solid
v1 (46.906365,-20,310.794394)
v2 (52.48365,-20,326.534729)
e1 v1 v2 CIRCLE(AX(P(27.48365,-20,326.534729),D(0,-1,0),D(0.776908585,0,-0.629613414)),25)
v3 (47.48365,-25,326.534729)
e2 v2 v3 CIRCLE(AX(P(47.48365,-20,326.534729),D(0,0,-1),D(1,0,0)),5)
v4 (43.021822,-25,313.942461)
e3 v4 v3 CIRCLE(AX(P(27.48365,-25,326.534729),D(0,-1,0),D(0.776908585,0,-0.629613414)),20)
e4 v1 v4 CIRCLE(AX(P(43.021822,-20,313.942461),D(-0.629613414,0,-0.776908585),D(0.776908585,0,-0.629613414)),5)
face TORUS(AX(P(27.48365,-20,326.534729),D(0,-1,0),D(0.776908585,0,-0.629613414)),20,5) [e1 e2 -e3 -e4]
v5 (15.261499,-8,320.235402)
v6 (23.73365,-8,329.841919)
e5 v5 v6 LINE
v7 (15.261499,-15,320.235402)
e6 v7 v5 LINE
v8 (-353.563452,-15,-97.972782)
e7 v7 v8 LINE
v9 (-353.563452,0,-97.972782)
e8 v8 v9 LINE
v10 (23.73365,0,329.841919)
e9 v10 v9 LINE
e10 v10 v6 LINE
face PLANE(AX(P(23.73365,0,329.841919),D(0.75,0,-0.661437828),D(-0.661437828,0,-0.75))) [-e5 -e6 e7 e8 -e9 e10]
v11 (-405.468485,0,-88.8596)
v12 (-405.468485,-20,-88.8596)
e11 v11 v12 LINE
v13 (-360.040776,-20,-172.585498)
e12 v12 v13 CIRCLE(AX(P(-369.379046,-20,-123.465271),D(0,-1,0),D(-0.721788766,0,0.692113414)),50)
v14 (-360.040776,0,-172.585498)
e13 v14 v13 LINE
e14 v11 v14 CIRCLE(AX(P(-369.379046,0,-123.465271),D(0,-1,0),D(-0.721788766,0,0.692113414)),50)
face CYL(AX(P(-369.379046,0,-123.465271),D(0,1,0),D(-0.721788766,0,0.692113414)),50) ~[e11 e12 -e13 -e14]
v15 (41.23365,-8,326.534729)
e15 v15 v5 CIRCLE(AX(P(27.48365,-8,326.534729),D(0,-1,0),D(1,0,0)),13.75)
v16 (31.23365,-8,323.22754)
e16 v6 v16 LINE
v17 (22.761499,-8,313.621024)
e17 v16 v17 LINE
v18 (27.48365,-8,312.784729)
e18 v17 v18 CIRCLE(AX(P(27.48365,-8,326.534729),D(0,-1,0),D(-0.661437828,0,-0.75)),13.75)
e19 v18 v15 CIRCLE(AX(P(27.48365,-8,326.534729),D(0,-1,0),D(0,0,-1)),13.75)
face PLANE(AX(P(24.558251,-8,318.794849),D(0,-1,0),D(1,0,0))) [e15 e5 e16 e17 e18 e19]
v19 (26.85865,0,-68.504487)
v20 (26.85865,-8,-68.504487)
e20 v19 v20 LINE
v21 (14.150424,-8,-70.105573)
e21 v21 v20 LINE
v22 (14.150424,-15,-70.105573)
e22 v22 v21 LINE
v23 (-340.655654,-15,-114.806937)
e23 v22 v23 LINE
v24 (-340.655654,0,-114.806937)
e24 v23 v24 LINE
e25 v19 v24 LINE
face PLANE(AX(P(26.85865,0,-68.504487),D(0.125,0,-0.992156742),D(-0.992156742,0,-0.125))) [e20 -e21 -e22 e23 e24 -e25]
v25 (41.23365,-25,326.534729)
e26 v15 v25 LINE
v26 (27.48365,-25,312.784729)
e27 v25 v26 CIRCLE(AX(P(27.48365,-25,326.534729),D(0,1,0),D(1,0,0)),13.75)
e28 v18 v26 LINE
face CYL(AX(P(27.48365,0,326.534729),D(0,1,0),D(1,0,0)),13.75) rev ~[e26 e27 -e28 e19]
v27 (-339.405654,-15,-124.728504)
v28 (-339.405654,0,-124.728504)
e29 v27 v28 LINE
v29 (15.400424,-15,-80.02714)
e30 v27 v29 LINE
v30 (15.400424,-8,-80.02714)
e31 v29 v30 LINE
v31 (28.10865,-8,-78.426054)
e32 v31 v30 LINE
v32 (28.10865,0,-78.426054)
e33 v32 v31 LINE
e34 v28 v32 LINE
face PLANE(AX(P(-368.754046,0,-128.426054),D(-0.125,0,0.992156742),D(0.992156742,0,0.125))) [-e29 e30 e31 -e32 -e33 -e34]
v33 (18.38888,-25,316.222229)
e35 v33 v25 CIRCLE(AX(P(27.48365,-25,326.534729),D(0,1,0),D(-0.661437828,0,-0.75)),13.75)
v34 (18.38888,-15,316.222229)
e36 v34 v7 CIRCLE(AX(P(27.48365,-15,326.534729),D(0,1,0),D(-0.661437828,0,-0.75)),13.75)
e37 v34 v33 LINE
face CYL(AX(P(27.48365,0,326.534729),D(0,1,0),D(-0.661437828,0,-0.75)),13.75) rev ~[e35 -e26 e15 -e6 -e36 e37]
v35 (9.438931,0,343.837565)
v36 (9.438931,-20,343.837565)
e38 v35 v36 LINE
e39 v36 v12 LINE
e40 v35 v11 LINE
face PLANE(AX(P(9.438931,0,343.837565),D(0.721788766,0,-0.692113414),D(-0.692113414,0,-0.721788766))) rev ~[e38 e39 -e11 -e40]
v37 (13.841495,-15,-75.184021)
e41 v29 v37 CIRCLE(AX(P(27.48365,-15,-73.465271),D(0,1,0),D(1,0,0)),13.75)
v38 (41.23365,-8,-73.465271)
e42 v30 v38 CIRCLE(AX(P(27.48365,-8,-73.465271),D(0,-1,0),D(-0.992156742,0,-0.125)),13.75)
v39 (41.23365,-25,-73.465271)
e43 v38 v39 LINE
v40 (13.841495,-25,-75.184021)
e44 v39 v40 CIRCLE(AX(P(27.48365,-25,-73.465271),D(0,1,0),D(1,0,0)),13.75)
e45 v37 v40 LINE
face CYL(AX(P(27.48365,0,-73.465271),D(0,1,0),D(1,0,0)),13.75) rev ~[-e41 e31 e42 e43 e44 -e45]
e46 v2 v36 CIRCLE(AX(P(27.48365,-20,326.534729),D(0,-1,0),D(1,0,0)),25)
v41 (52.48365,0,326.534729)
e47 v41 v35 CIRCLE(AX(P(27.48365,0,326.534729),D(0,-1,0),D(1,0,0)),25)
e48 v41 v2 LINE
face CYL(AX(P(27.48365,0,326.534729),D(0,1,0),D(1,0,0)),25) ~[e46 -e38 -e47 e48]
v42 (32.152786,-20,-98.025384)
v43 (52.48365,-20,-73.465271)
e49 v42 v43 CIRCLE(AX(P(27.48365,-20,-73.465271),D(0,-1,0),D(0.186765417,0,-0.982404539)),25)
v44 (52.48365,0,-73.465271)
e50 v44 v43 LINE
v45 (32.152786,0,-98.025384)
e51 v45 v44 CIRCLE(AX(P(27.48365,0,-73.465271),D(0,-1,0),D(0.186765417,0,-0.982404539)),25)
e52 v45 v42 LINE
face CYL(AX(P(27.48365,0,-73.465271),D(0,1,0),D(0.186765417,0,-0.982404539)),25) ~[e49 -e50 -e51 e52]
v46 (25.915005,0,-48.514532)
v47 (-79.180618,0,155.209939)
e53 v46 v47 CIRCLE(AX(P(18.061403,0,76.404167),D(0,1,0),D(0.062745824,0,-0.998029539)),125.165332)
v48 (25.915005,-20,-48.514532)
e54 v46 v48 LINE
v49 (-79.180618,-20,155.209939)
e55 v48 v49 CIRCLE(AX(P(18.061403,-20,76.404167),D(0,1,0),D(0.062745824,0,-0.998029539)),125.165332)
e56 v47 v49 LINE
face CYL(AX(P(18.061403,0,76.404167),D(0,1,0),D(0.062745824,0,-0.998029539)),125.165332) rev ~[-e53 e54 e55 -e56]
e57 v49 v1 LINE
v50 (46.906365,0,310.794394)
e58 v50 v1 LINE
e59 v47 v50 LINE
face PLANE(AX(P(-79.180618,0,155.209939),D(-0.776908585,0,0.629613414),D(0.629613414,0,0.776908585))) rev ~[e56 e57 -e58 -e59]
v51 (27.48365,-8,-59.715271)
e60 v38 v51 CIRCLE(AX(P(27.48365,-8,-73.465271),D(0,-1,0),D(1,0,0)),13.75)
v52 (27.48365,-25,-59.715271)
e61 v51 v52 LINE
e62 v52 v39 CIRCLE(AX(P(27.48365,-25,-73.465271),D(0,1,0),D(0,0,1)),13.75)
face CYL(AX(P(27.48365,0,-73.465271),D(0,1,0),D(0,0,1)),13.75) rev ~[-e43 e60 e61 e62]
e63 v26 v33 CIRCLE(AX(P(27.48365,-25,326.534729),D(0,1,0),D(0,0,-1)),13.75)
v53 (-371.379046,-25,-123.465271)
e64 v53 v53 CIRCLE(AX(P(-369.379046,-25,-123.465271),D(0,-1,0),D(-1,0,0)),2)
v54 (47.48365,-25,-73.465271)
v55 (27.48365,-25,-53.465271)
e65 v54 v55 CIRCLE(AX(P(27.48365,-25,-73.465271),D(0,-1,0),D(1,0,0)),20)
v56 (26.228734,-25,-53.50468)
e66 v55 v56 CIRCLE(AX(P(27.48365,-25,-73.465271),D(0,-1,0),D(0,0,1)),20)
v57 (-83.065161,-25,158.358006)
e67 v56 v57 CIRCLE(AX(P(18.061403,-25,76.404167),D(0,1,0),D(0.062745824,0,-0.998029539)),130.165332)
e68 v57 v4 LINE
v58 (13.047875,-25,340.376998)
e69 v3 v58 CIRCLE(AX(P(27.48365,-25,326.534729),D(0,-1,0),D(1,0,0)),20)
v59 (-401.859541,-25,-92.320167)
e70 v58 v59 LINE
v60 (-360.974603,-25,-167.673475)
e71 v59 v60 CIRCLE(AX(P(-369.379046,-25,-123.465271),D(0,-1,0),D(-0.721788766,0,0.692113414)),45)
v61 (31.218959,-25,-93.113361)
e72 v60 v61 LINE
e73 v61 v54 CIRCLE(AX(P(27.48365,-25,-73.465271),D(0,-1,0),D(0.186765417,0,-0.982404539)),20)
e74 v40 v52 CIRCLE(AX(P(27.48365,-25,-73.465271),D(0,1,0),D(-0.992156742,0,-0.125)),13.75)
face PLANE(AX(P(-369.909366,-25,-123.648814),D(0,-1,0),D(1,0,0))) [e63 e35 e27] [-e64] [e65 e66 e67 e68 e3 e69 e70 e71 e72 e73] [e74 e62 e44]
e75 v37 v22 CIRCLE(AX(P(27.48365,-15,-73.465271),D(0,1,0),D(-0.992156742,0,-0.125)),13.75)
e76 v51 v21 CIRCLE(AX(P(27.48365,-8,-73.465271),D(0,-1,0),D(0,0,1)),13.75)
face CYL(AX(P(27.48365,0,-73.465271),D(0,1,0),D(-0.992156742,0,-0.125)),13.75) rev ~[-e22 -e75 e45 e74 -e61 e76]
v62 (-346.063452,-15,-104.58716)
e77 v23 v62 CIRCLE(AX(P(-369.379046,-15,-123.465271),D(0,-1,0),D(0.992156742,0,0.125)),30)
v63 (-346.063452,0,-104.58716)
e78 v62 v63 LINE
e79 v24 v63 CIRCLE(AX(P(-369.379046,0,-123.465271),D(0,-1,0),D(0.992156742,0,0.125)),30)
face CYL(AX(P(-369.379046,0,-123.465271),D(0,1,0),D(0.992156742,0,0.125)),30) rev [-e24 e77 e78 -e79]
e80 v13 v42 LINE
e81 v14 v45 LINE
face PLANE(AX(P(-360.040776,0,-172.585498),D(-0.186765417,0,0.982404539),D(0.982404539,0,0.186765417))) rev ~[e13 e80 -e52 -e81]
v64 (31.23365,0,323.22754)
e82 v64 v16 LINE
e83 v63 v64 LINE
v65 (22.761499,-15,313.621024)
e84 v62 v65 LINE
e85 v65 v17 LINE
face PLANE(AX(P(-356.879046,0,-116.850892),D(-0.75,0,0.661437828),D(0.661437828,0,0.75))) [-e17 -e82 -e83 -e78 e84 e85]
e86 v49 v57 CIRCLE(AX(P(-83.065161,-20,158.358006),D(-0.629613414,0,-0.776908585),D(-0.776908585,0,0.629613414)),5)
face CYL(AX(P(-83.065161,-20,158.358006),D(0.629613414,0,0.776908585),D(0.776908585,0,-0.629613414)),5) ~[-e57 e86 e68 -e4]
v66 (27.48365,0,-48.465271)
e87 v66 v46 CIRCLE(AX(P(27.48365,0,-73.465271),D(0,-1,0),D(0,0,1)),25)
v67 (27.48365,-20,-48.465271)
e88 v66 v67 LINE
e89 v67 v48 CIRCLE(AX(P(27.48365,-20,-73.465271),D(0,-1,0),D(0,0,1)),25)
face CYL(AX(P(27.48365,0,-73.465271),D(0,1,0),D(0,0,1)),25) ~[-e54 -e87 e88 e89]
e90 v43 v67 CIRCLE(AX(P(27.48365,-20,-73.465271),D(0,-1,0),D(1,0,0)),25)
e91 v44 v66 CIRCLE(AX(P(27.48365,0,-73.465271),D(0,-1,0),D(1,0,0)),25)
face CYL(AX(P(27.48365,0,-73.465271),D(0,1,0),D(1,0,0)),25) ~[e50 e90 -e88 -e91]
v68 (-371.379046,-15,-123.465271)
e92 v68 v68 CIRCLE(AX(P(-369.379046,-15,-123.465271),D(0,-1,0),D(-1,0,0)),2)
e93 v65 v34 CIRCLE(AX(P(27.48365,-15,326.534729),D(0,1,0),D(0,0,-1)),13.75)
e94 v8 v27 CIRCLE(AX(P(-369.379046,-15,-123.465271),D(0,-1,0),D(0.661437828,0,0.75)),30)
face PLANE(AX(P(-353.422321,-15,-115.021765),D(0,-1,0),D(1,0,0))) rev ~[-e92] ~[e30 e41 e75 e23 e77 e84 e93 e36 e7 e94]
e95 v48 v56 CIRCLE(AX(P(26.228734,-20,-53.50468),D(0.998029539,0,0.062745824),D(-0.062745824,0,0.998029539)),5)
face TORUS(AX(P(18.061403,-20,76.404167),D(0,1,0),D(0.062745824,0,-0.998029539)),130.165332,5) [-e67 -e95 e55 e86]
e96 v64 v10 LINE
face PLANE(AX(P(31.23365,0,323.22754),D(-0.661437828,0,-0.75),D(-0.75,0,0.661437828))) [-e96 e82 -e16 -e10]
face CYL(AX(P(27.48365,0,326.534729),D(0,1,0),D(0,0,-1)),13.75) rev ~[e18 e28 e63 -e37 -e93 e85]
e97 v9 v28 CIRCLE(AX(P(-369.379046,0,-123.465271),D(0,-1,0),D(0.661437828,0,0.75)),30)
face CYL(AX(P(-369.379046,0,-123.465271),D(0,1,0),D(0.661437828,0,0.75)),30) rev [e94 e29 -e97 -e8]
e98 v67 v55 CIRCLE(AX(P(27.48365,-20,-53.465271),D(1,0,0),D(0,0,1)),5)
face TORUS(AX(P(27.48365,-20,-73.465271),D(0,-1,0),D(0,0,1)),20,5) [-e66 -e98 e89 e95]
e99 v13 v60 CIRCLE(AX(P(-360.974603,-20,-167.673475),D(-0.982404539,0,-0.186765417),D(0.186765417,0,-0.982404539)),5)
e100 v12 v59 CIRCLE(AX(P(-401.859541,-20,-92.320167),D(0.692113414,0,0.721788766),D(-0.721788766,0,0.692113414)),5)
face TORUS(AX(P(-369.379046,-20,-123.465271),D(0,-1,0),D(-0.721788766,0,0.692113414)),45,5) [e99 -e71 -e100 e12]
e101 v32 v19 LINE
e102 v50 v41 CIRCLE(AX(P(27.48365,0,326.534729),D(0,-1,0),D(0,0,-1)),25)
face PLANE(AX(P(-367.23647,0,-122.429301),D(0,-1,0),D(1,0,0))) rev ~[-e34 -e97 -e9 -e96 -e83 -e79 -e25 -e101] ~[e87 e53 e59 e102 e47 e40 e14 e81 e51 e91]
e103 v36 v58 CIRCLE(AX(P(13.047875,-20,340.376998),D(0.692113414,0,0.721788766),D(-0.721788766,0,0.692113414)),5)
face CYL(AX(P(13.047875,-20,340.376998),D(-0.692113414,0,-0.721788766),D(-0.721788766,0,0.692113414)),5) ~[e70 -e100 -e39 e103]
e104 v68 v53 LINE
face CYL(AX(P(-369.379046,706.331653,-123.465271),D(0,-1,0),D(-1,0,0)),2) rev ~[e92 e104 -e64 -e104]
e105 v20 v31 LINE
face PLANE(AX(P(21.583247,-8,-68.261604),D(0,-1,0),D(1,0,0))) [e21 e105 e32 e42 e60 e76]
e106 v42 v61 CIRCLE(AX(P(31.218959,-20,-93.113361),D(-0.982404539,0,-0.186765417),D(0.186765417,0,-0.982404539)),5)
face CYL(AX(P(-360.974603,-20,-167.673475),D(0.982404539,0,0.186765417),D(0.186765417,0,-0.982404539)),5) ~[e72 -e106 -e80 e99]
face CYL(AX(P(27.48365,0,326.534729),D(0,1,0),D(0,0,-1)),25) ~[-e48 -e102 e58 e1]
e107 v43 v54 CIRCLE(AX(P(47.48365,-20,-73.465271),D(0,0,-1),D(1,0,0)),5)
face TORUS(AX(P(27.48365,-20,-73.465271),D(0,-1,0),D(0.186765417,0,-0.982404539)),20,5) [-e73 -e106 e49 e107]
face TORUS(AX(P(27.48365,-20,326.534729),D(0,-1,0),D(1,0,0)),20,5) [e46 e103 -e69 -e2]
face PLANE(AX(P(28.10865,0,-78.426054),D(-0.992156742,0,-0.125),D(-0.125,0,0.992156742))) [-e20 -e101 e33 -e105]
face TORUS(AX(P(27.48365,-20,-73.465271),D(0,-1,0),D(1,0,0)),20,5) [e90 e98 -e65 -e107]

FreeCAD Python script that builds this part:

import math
import FreeCAD as App
import Part
import Sketcher
from FreeCAD import Vector
Q = App.Units.Quantity


def edges_at(feature, points):
    """Names of the edges that pass closest to the given points."""
    edges = feature.Shape.Edges
    near = lambda p: min(range(len(edges)), key=lambda i: edges[i].distToShape(Part.Vertex(*p))[0])
    return sorted({f"Edge{near(p) + 1}" for p in points})

doc = App.newDocument("Part")
body = doc.addObject("PartDesign::Body", "Body")

sketch1 = doc.addObject("Sketcher::SketchObject", "Sketch")
body.addObject(sketch1)
sketch1.AttachmentSupport = (doc.XZ_Plane, [""])
sketch1.MapMode = "FlatFace"
sketch1.addGeometry(Part.ArcOfCircle(Part.Circle(Vector(27.48365, -73.465271, 0), Vector(0, 0, 1), 25), math.radians(90), math.radians(93.597434)), False)
sketch1.addGeometry(Part.ArcOfCircle(Part.Circle(Vector(18.061403, 76.404167, 0), Vector(0, 0, 1), 125.165332), math.radians(140.978393), math.radians(273.597434)), False)
sketch1.addGeometry(Part.LineSegment(Vector(-79.180618, 155.209939, 0), Vector(46.906365, 310.794394, 0)), False)
sketch1.addGeometry(Part.ArcOfCircle(Part.Circle(Vector(27.48365, 326.534729, 0), Vector(0, 0, 1), 25), math.radians(-39.021607), math.radians(0)), False)
sketch1.addGeometry(Part.ArcOfCircle(Part.Circle(Vector(27.48365, 326.534729, 0), Vector(0, 0, 1), 25), math.radians(0), math.radians(136.202362)), False)
sketch1.addGeometry(Part.LineSegment(Vector(9.438931, 343.837565, 0), Vector(-405.468485, -88.8596, 0)), False)
sketch1.addGeometry(Part.ArcOfCircle(Part.Circle(Vector(-369.379046, -123.465271, 0), Vector(0, 0, 1), 50), math.radians(136.202362), math.radians(280.764077)), False)
sketch1.addGeometry(Part.LineSegment(Vector(-360.040776, -172.585498, 0), Vector(32.152786, -98.025384, 0)), False)
sketch1.addGeometry(Part.ArcOfCircle(Part.Circle(Vector(27.48365, -73.465271, 0), Vector(0, 0, 1), 25), math.radians(-79.235923), math.radians(0)), False)
sketch1.addGeometry(Part.ArcOfCircle(Part.Circle(Vector(27.48365, -73.465271, 0), Vector(0, 0, 1), 25), math.radians(0), math.radians(90)), False)
sketch1.addGeometry(Part.ArcOfCircle(Part.Circle(Vector(27.48365, 326.534729, 0), Vector(0, 0, 1), 13.75), math.radians(0), math.radians(228.590378)), False)
sketch1.addGeometry(Part.ArcOfCircle(Part.Circle(Vector(27.48365, 326.534729, 0), Vector(0, 0, 1), 13.75), math.radians(-90), math.radians(0)), False)
sketch1.addGeometry(Part.ArcOfCircle(Part.Circle(Vector(27.48365, 326.534729, 0), Vector(0, 0, 1), 13.75), math.radians(-131.409622), math.radians(-90)), False)
sketch1.addGeometry(Part.ArcOfCircle(Part.Circle(Vector(-369.379046, -123.465271, 0), Vector(0, 0, 1), 30), math.radians(0), math.radians(7.180756)), False)
sketch1.addGeometry(Part.ArcOfCircle(Part.Circle(Vector(-369.379046, -123.465271, 0), Vector(0, 0, 1), 30), math.radians(48.590378), math.radians(360)), False)
sketch1.addGeometry(Part.ArcOfCircle(Part.Circle(Vector(-369.379046, -123.465271, 0), Vector(0, 0, 1), 30), math.radians(7.180756), math.radians(48.590378)), False)
sketch1.addGeometry(Part.ArcOfCircle(Part.Circle(Vector(27.48365, -73.465271, 0), Vector(0, 0, 1), 13.75), math.radians(-172.819244), math.radians(0)), False)
sketch1.addGeometry(Part.ArcOfCircle(Part.Circle(Vector(27.48365, -73.465271, 0), Vector(0, 0, 1), 13.75), math.radians(90), math.radians(187.180756)), False)
sketch1.addGeometry(Part.ArcOfCircle(Part.Circle(Vector(27.48365, -73.465271, 0), Vector(0, 0, 1), 13.75), math.radians(0), math.radians(90)), False)
sketch1.addConstraint(Sketcher.Constraint("Tangent", 0, 2, 1, 2))
sketch1.addConstraint(Sketcher.Constraint("Tangent", 1, 1, 2, 1))
sketch1.addConstraint(Sketcher.Constraint("Tangent", 2, 2, 3, 1))
sketch1.addConstraint(Sketcher.Constraint("Tangent", 3, 2, 4, 1))
sketch1.addConstraint(Sketcher.Constraint("Tangent", 4, 2, 5, 1))
sketch1.addConstraint(Sketcher.Constraint("Tangent", 5, 2, 6, 1))
sketch1.addConstraint(Sketcher.Constraint("Tangent", 6, 2, 7, 1))
sketch1.addConstraint(Sketcher.Constraint("Tangent", 7, 2, 8, 1))
sketch1.addConstraint(Sketcher.Constraint("Tangent", 8, 2, 9, 1))
sketch1.addConstraint(Sketcher.Constraint("Tangent", 9, 2, 0, 1))
sketch1.addConstraint(Sketcher.Constraint("Tangent", 10, 1, 11, 2))
sketch1.addConstraint(Sketcher.Constraint("Tangent", 11, 1, 12, 2))
sketch1.addConstraint(Sketcher.Constraint("Tangent", 12, 1, 10, 2))
sketch1.addConstraint(Sketcher.Constraint("Tangent", 13, 1, 14, 2))
sketch1.addConstraint(Sketcher.Constraint("Tangent", 14, 1, 15, 2))
sketch1.addConstraint(Sketcher.Constraint("Tangent", 15, 1, 13, 2))
sketch1.addConstraint(Sketcher.Constraint("Tangent", 16, 1, 17, 2))
sketch1.addConstraint(Sketcher.Constraint("Tangent", 17, 1, 18, 2))
sketch1.addConstraint(Sketcher.Constraint("Tangent", 18, 1, 16, 2))
sketch1.addConstraint(Sketcher.Constraint("Coincident", 8, 3, 0, 3))
sketch1.addConstraint(Sketcher.Constraint("Coincident", 10, 3, 3, 3))
sketch1.addConstraint(Sketcher.Constraint("Coincident", 13, 3, 6, 3))
sketch1.addConstraint(Sketcher.Constraint("Coincident", 16, 3, 0, 3))
sketch1.addConstraint(Sketcher.Constraint("Equal", 0, 3))
sketch1.addConstraint(Sketcher.Constraint("Equal", 3, 4))
sketch1.addConstraint(Sketcher.Constraint("Equal", 12, 16))
sketch1.addConstraint(Sketcher.Constraint("Horizontal", 12, 3, 3, 2))
sketch1.addConstraint(Sketcher.Constraint("Horizontal", 18, 3, 8, 2))
sketch1.addConstraint(Sketcher.Constraint("Horizontal", 3, 2, 10, 1))
sketch1.addConstraint(Sketcher.Constraint("Horizontal", 15, 3, 13, 1))
sketch1.addConstraint(Sketcher.Constraint("Horizontal", 8, 2, 18, 1))
sketch1.addConstraint(Sketcher.Constraint("Vertical", 0, 3, 3, 3))
sketch1.addConstraint(Sketcher.Constraint("Vertical", 18, 3, 9, 2))
sketch1.addConstraint(Sketcher.Constraint("Vertical", 9, 2, 11, 1))
sketch1.addConstraint(Sketcher.Constraint("Vertical", 11, 1, 17, 1))
sketch1.addConstraint(Sketcher.Constraint("Radius", 0, Q("25 mm")))
sketch1.addConstraint(Sketcher.Constraint("Radius", 6, Q("50 mm")))
sketch1.addConstraint(Sketcher.Constraint("Radius", 13, Q("30 mm")))
sketch1.addConstraint(Sketcher.Constraint("Radius", 10, Q("13.75 mm")))
sketch1.addConstraint(Sketcher.Constraint("DistanceY", 0, 3, 3, 3, Q("400 mm")))
sketch1.addConstraint(Sketcher.Constraint("DistanceY", 6, 3, 0, 3, Q("50 mm")))
sketch1.addConstraint(Sketcher.Constraint("DistanceY", 13, 1, 14, 1, Q("22.5 mm")))
sketch1.addConstraint(Sketcher.Constraint("DistanceY", 13, 1, 15, 1, Q("3.75 mm")))
sketch1.addConstraint(Sketcher.Constraint("Radius", 1, Q("125.165332 mm")))
sketch1.addConstraint(Sketcher.Constraint("DistanceY", 5, 2, -1, 1, Q("88.8596 mm")))
sketch1.addConstraint(Sketcher.Constraint("DistanceY", 11, 1, 12, 1, Q("3.4375 mm")))
sketch1.addConstraint(Sketcher.Constraint("Distance", 5, Q("599.47894 mm")))
sketch1.addConstraint(Sketcher.Constraint("DistanceX", -1, 1, 0, 3, Q("27.48365 mm")))
sketch1.addConstraint(Sketcher.Constraint("DistanceX", 1, 1, -1, 1, Q("79.180618 mm")))
sketch1.addConstraint(Sketcher.Constraint("DistanceY", 16, 1, -1, 1, Q("75.184021 mm")))
pad1 = doc.addObject("PartDesign::Pad", "Pad")
body.addObject(pad1)
pad1.Profile = sketch1
pad1.Length = 25

sketch2 = doc.addObject("Sketcher::SketchObject", "Sketch001")
body.addObject(sketch2)
sketch2.AttachmentSupport = (doc.XZ_Plane, [""])
sketch2.MapMode = "FlatFace"
sketch2.addGeometry(Part.ArcOfCircle(Part.Circle(Vector(27.48365, -73.465271, 0), Vector(0, 0, 1), 13.75), math.radians(90), math.radians(187.180756)), False)
sketch2.addGeometry(Part.ArcOfCircle(Part.Circle(Vector(27.48365, -73.465271, 0), Vector(0, 0, 1), 13.75), math.radians(-172.819244), math.radians(0)), False)
sketch2.addGeometry(Part.ArcOfCircle(Part.Circle(Vector(27.48365, -73.465271, 0), Vector(0, 0, 1), 13.75), math.radians(0), math.radians(90)), False)
sketch2.addGeometry(Part.ArcOfCircle(Part.Circle(Vector(27.48365, 326.534729, 0), Vector(0, 0, 1), 13.75), math.radians(-131.409622), math.radians(-90)), False)
sketch2.addGeometry(Part.ArcOfCircle(Part.Circle(Vector(27.48365, 326.534729, 0), Vector(0, 0, 1), 13.75), math.radians(-90), math.radians(0)), False)
sketch2.addGeometry(Part.ArcOfCircle(Part.Circle(Vector(27.48365, 326.534729, 0), Vector(0, 0, 1), 13.75), math.radians(0), math.radians(228.590378)), False)
sketch2.addConstraint(Sketcher.Constraint("Tangent", 0, 2, 1, 1))
sketch2.addConstraint(Sketcher.Constraint("Tangent", 1, 2, 2, 1))
sketch2.addConstraint(Sketcher.Constraint("Tangent", 2, 2, 0, 1))
sketch2.addConstraint(Sketcher.Constraint("Tangent", 3, 2, 4, 1))
sketch2.addConstraint(Sketcher.Constraint("Tangent", 4, 2, 5, 1))
sketch2.addConstraint(Sketcher.Constraint("Tangent", 5, 2, 3, 1))
sketch2.addConstraint(Sketcher.Constraint("Equal", 2, 3))
sketch2.addConstraint(Sketcher.Constraint("Horizontal", 2, 3, 1, 2))
sketch2.addConstraint(Sketcher.Constraint("Horizontal", 5, 3, 4, 2))
sketch2.addConstraint(Sketcher.Constraint("Vertical", 2, 3, 3, 3))
sketch2.addConstraint(Sketcher.Constraint("Vertical", 5, 3, 2, 2))
sketch2.addConstraint(Sketcher.Constraint("Vertical", 2, 2, 3, 2))
sketch2.addConstraint(Sketcher.Constraint("Radius", 0, Q("13.75 mm")))
sketch2.addConstraint(Sketcher.Constraint("DistanceY", 0, 3, 3, 3, Q("400 mm")))
sketch2.addConstraint(Sketcher.Constraint("DistanceY", 3, 2, 5, 2, Q("3.4375 mm")))
sketch2.addConstraint(Sketcher.Constraint("DistanceX", -1, 1, 0, 3, Q("27.48365 mm")))
sketch2.addConstraint(Sketcher.Constraint("DistanceY", 0, 3, -1, 1, Q("73.465271 mm")))
sketch2.addConstraint(Sketcher.Constraint("DistanceY", 0, 2, -1, 1, Q("75.184021 mm")))
pad2 = doc.addObject("PartDesign::Pad", "Pad001")
body.addObject(pad2)
pad2.Profile = sketch2
pad2.Length = 8

sketch3 = doc.addObject("Sketcher::SketchObject", "Sketch002")
body.addObject(sketch3)
sketch3.AttachmentSupport = (doc.XZ_Plane, [""])
sketch3.MapMode = "FlatFace"
sketch3.addGeometry(Part.ArcOfCircle(Part.Circle(Vector(-369.379046, -123.465271, 0), Vector(0, 0, 1), 30), math.radians(48.590378), math.radians(360)), False)
sketch3.addGeometry(Part.ArcOfCircle(Part.Circle(Vector(-369.379046, -123.465271, 0), Vector(0, 0, 1), 30), math.radians(0), math.radians(7.180756)), False)
sketch3.addGeometry(Part.ArcOfCircle(Part.Circle(Vector(-369.379046, -123.465271, 0), Vector(0, 0, 1), 30), math.radians(7.180756), math.radians(48.590378)), False)
sketch3.addConstraint(Sketcher.Constraint("Tangent", 0, 2, 1, 1))
sketch3.addConstraint(Sketcher.Constraint("Tangent", 1, 2, 2, 1))
sketch3.addConstraint(Sketcher.Constraint("Tangent", 2, 2, 0, 1))
sketch3.addConstraint(Sketcher.Constraint("Horizontal", 2, 3, 0, 2))
sketch3.addConstraint(Sketcher.Constraint("Radius", 0, Q("30 mm")))
sketch3.addConstraint(Sketcher.Constraint("DistanceY", 0, 2, 2, 2, Q("22.5 mm")))
sketch3.addConstraint(Sketcher.Constraint("DistanceY", 0, 2, 1, 2, Q("3.75 mm")))
sketch3.addConstraint(Sketcher.Constraint("DistanceY", 0, 3, -1, 1, Q("123.465271 mm")))
sketch3.addConstraint(Sketcher.Constraint("DistanceX", 2, 2, -1, 1, Q("349.535912 mm")))
pad3 = doc.addObject("PartDesign::Pad", "Pad002")
body.addObject(pad3)
pad3.Profile = sketch3
pad3.Length = 25

sketch4 = doc.addObject("Sketcher::SketchObject", "Sketch003")
body.addObject(sketch4)
sketch4.AttachmentSupport = (doc.XZ_Plane, [""])
sketch4.MapMode = "FlatFace"
sketch4.addGeometry(Part.ArcOfCircle(Part.Circle(Vector(-369.379046, -123.465271, 0), Vector(0, 0, 1), 30), math.radians(7.180756), math.radians(48.590378)), False)
sketch4.addGeometry(Part.ArcOfCircle(Part.Circle(Vector(-369.379046, -123.465271, 0), Vector(0, 0, 1), 30), math.radians(48.590378), math.radians(360)), False)
sketch4.addGeometry(Part.ArcOfCircle(Part.Circle(Vector(-369.379046, -123.465271, 0), Vector(0, 0, 1), 30), math.radians(0), math.radians(7.180756)), False)
sketch4.addConstraint(Sketcher.Constraint("Tangent", 0, 2, 1, 1))
sketch4.addConstraint(Sketcher.Constraint("Tangent", 1, 2, 2, 1))
sketch4.addConstraint(Sketcher.Constraint("Tangent", 2, 2, 0, 1))
sketch4.addConstraint(Sketcher.Constraint("Horizontal", 2, 3, 1, 2))
sketch4.addConstraint(Sketcher.Constraint("Radius", 0, Q("30 mm")))
sketch4.addConstraint(Sketcher.Constraint("DistanceY", 0, 3, 0, 2, Q("22.5 mm")))
sketch4.addConstraint(Sketcher.Constraint("DistanceY", 1, 2, 2, 2, Q("3.75 mm")))
sketch4.addConstraint(Sketcher.Constraint("DistanceY", 0, 3, -1, 1, Q("123.465271 mm")))
sketch4.addConstraint(Sketcher.Constraint("DistanceX", 0, 2, -1, 1, Q("349.535912 mm")))
pocket1 = doc.addObject("PartDesign::Pocket", "Pocket")
body.addObject(pocket1)
pocket1.Profile = sketch4
pocket1.Length = 15
pocket1.Reversed = True

sketch5 = doc.addObject("Sketcher::SketchObject", "Sketch004")
body.addObject(sketch5)
sketch5.AttachmentSupport = (doc.XZ_Plane, [""])
sketch5.MapMode = "FlatFace"
sketch5.addGeometry(Part.LineSegment(Vector(-369.379046, -123.465271, 0), Vector(-368.754046, -128.426054, 0)), False)
sketch5.addGeometry(Part.LineSegment(Vector(-368.754046, -128.426054, 0), Vector(28.10865, -78.426054, 0)), False)
sketch5.addGeometry(Part.LineSegment(Vector(28.10865, -78.426054, 0), Vector(26.85865, -68.504487, 0)), False)
sketch5.addGeometry(Part.LineSegment(Vector(26.85865, -68.504487, 0), Vector(-356.879046, -116.850892, 0)), False)
sketch5.addGeometry(Part.LineSegment(Vector(-356.879046, -116.850892, 0), Vector(-365.629046, -126.77246, 0)), False)
sketch5.addGeometry(Part.LineSegment(Vector(-365.629046, -126.77246, 0), Vector(-369.379046, -123.465271, 0)), False)
sketch5.addGeometry(Part.LineSegment(Vector(-373.129046, -120.158081, 0), Vector(-369.379046, -123.465271, 0)), False)
sketch5.addGeometry(Part.LineSegment(Vector(-369.379046, -123.465271, 0), Vector(-370.004046, -118.504487, 0)), False)
sketch5.addGeometry(Part.LineSegment(Vector(-370.004046, -118.504487, 0), Vector(-356.879046, -116.850892, 0)), False)
sketch5.addGeometry(Part.LineSegment(Vector(-356.879046, -116.850892, 0), Vector(31.23365, 323.22754, 0)), False)
sketch5.addGeometry(Part.LineSegment(Vector(31.23365, 323.22754, 0), Vector(23.73365, 329.841919, 0)), False)
sketch5.addGeometry(Part.LineSegment(Vector(23.73365, 329.841919, 0), Vector(-373.129046, -120.158081, 0)), False)
sketch5.addConstraint(Sketcher.Constraint("Coincident", 0, 2, 1, 1))
sketch5.addConstraint(Sketcher.Constraint("Coincident", 1, 2, 2, 1))
sketch5.addConstraint(Sketcher.Constraint("Coincident", 2, 2, 3, 1))
sketch5.addConstraint(Sketcher.Constraint("Coincident", 3, 2, 4, 1))
sketch5.addConstraint(Sketcher.Constraint("Coincident", 4, 2, 5, 1))
sketch5.addConstraint(Sketcher.Constraint("Coincident", 5, 2, 0, 1))
sketch5.addConstraint(Sketcher.Constraint("Coincident", 6, 2, 7, 1))
sketch5.addConstraint(Sketcher.Constraint("Coincident", 7, 2, 8, 1))
sketch5.addConstraint(Sketcher.Constraint("Coincident", 8, 2, 9, 1))
sketch5.addConstraint(Sketcher.Constraint("Coincident", 9, 2, 10, 1))
sketch5.addConstraint(Sketcher.Constraint("Coincident", 10, 2, 11, 1))
sketch5.addConstraint(Sketcher.Constraint("Coincident", 11, 2, 6, 1))
sketch5.addConstraint(Sketcher.Constraint("Coincident", 6, 2, 5, 2))
sketch5.addConstraint(Sketcher.Constraint("Coincident", 8, 2, 3, 2))
sketch5.addConstraint(Sketcher.Constraint("Perpendicular", 0, 1))
sketch5.addConstraint(Sketcher.Constraint("Perpendicular", 1, 2))
sketch5.addConstraint(Sketcher.Constraint("Perpendicular", 2, 3))
sketch5.addConstraint(Sketcher.Constraint("Perpendicular", 4, 5))
sketch5.addConstraint(Sketcher.Constraint("Parallel", 5, 6))
sketch5.addConstraint(Sketcher.Constraint("Perpendicular", 3, 7))
sketch5.addConstraint(Sketcher.Constraint("Perpendicular", 7, 8))
sketch5.addConstraint(Sketcher.Constraint("Perpendicular", 6, 9))
sketch5.addConstraint(Sketcher.Constraint("Perpendicular", 9, 10))
sketch5.addConstraint(Sketcher.Constraint("Perpendicular", 10, 11))
sketch5.addConstraint(Sketcher.Constraint("Equal", 0, 5))
sketch5.addConstraint(Sketcher.Constraint("Equal", 5, 6))
sketch5.addConstraint(Sketcher.Constraint("Equal", 6, 7))
sketch5.addConstraint(Sketcher.Constraint("Distance", 0, Q("5 mm")))
sketch5.addConstraint(Sketcher.Constraint("Distance", 1, Q("400 mm")))
sketch5.addConstraint(Sketcher.Constraint("Distance", 11, Q("600 mm")))
sketch5.addConstraint(Sketcher.Constraint("DistanceY", 0, 2, 1, 2, Q("50 mm")))
sketch5.addConstraint(Sketcher.Constraint("DistanceX", 5, 2, 3, 2, Q("12.5 mm")))
sketch5.addConstraint(Sketcher.Constraint("DistanceX", -1, 1, 1, 2, Q("28.10865 mm")))
sketch5.addConstraint(Sketcher.Constraint("DistanceY", 4, 2, -1, 1, Q("126.77246 mm")))
pocket2 = doc.addObject("PartDesign::Pocket", "Pocket001")
body.addObject(pocket2)
pocket2.Profile = sketch5
pocket2.Length = 15
pocket2.Reversed = True

sketch6 = doc.addObject("Sketcher::SketchObject", "Sketch005")
body.addObject(sketch6)
sketch6.AttachmentSupport = (doc.XZ_Plane, [""])
sketch6.MapMode = "FlatFace"
sketch6.addGeometry(Part.Circle(Vector(-369.379046, -123.465271, 0), Vector(0, 0, 1), 2), False)
sketch6.addConstraint(Sketcher.Constraint("Diameter", 0, Q("4 mm")))
sketch6.addConstraint(Sketcher.Constraint("DistanceY", 0, 3, -1, 1, Q("123.465271 mm")))
sketch6.addConstraint(Sketcher.Constraint("DistanceX", 0, 3, -1, 1, Q("369.379046 mm")))
doc.recompute()
hole = doc.addObject("PartDesign::Hole", "Hole")
body.addObject(hole)
hole.Profile = sketch6
hole.ThreadType = "None"
hole.Diameter = 4
hole.DepthType = "ThroughAll"
hole.Reversed = True
doc.recompute()

fillet = doc.addObject("PartDesign::Fillet", "Fillet")
body.addObject(fillet)
fillet.Base = (hole, edges_at(hole, [(-198.015, -25, 127.489)]))
fillet.Radius = 5

doc.recompute()
